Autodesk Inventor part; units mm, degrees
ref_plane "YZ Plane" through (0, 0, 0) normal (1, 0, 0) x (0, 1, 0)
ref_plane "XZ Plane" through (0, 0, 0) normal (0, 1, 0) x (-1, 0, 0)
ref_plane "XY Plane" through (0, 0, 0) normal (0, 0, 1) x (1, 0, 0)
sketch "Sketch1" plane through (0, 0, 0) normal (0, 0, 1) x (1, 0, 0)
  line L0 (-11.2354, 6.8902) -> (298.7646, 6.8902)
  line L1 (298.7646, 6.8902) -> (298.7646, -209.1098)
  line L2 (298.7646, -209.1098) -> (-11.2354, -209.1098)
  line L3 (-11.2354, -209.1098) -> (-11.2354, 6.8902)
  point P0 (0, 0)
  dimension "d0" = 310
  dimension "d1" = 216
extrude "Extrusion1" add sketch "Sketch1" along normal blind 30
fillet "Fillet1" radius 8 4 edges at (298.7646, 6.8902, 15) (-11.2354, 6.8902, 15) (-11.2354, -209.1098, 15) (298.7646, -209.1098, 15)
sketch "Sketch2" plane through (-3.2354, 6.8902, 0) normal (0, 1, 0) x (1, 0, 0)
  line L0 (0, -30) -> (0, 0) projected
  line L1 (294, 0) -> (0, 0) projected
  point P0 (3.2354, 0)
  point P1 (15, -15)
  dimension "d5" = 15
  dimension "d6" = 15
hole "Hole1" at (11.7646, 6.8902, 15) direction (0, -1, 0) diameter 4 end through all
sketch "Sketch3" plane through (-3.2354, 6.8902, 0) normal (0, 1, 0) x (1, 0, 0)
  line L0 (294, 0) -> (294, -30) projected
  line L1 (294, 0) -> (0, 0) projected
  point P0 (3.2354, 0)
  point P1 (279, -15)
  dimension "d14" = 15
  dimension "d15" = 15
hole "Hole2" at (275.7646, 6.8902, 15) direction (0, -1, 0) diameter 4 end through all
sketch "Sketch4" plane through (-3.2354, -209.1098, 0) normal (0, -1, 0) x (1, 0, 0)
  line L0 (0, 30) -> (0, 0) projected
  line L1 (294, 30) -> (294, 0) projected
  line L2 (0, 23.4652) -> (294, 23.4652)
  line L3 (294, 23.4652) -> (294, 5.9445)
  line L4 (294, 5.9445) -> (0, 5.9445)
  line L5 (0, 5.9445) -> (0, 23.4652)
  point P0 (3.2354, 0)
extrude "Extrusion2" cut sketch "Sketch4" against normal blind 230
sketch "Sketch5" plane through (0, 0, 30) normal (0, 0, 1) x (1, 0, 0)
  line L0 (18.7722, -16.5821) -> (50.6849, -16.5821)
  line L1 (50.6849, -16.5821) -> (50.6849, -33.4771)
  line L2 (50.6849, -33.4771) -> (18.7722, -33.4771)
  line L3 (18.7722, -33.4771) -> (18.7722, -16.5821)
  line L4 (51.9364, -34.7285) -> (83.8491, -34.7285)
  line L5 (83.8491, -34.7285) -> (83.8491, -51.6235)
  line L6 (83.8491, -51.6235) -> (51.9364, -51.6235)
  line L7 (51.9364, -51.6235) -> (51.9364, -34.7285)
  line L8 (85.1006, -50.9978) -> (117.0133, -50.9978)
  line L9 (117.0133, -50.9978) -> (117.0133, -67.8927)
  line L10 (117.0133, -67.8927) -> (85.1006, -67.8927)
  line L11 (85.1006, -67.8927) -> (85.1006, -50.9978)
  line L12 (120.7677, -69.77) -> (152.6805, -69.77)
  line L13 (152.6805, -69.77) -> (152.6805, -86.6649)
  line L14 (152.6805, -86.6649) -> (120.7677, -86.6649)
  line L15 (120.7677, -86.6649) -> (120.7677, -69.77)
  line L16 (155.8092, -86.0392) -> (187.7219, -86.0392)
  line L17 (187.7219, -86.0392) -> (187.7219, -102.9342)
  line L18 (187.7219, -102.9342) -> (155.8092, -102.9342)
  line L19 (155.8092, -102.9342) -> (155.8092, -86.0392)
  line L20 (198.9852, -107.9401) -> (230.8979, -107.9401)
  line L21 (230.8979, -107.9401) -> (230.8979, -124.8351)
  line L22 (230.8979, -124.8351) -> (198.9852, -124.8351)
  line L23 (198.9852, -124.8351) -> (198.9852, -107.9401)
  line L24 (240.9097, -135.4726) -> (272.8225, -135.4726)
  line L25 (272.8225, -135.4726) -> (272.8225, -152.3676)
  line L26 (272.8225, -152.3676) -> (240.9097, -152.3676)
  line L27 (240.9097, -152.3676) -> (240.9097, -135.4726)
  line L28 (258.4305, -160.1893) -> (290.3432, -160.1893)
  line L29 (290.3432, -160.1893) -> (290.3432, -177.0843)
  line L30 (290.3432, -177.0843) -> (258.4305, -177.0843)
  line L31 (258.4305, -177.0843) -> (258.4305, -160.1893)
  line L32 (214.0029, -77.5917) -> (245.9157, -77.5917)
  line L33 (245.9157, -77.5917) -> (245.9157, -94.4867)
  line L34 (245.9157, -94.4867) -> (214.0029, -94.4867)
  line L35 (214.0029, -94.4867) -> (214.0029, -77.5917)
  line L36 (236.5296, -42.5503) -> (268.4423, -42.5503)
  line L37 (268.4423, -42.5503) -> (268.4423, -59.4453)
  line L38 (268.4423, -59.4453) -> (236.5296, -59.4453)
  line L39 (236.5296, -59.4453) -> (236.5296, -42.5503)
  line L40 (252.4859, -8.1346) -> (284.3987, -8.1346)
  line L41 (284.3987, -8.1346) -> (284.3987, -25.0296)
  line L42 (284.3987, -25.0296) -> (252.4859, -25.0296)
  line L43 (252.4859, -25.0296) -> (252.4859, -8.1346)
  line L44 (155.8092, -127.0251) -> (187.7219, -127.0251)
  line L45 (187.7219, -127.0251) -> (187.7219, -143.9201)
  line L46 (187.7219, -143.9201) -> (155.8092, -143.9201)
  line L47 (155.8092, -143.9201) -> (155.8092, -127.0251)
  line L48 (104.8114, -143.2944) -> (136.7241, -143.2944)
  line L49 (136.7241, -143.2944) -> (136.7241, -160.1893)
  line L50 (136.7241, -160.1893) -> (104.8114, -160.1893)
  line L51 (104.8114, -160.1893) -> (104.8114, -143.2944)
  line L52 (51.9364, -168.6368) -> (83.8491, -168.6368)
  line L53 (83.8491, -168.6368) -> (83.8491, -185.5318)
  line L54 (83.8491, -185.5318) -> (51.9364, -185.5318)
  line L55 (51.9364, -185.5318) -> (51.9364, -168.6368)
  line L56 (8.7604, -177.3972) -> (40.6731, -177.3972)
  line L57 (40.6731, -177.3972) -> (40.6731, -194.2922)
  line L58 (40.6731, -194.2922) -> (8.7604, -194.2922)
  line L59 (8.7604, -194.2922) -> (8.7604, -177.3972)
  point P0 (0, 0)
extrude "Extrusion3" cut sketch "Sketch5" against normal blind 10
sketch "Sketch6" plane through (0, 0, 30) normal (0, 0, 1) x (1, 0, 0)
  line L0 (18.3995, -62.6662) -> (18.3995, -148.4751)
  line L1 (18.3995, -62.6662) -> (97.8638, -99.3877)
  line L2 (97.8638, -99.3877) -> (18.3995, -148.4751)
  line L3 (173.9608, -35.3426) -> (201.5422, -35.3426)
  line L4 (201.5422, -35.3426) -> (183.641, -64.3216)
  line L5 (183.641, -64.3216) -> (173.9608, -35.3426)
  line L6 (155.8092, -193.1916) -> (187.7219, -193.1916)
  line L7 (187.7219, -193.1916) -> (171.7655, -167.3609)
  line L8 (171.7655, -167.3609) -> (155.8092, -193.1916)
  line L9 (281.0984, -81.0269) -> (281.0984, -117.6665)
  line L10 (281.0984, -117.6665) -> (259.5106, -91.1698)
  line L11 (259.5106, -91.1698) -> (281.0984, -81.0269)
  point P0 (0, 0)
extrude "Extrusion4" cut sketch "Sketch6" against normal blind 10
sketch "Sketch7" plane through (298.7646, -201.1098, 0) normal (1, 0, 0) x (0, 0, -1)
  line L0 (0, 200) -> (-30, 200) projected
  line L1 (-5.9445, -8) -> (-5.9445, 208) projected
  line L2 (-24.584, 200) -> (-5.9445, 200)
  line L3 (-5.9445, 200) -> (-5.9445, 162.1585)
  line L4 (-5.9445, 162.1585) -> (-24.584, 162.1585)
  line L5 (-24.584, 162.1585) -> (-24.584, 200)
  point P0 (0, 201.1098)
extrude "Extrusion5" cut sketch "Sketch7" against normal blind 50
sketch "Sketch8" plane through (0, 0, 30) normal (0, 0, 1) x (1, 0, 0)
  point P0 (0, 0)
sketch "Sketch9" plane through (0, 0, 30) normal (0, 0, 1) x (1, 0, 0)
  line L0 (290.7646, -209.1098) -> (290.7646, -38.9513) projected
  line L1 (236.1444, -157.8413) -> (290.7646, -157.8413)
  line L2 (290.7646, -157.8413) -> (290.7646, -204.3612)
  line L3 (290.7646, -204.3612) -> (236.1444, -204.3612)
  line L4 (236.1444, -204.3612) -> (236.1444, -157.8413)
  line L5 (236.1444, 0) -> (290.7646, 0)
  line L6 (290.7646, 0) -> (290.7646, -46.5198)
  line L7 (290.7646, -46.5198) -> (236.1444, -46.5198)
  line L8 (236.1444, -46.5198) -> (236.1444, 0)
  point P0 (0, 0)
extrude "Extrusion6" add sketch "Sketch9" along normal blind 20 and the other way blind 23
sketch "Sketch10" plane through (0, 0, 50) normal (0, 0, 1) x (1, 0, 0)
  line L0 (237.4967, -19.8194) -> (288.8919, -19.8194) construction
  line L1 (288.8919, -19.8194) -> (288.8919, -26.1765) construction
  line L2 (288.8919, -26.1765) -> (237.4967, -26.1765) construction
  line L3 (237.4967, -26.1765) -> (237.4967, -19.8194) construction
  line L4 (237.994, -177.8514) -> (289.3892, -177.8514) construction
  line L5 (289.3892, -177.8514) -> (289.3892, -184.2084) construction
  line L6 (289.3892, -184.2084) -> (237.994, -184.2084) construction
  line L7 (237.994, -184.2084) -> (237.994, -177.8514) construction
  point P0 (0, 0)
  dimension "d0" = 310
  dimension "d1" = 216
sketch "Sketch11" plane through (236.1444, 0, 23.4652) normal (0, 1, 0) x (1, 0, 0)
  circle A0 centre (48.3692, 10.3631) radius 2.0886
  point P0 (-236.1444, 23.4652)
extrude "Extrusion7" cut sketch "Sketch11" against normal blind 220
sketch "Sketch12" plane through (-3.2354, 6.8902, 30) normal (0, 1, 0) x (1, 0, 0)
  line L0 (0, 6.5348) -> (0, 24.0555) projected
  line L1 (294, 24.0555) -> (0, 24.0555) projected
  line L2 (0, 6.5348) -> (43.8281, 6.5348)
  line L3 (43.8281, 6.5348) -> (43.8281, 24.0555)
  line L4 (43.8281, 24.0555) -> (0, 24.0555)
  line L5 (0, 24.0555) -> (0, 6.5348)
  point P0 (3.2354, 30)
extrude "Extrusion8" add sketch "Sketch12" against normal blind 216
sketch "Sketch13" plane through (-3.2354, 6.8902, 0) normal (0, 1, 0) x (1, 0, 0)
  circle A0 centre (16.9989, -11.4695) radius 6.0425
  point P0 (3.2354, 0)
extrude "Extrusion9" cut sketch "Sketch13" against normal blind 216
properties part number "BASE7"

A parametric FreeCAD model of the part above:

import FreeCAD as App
import Part
import Sketcher

V = App.Vector
Q = App.Units.Quantity


def edges_at(feature, points):
    """Names of the edges that pass closest to the given points."""
    edges = feature.Shape.Edges
    near = lambda p: min(range(len(edges)), key=lambda i: edges[i].distToShape(Part.Vertex(*p))[0])
    return sorted({f"Edge{near(p) + 1}" for p in points})


def add_polygon(sketch, points):
    """Adds a closed chain of lines whose ends are joined by coincident constraints."""
    first, n = sketch.GeometryCount, len(points)
    for a, b in zip(points, points[1:] + points[:1]):
        sketch.addGeometry(Part.LineSegment(App.Vector(*a, 0), App.Vector(*b, 0)), False)
    for i in range(n):
        sketch.addConstraint(Sketcher.Constraint("Coincident", first + i, 2, first + (i + 1) % n, 1))

doc = App.newDocument("Part")
body = doc.addObject("PartDesign::Body", "Body")

# Sketch on XY plane
sketch1 = doc.addObject("Sketcher::SketchObject", "Sketch")
body.addObject(sketch1)
sketch1.AttachmentSupport = (doc.XY_Plane, [""])
sketch1.MapMode = "FlatFace"
add_polygon(sketch1, [(299, 7), (-11, 7), (-11, -209), (299, -209)])  # lines 0-3
sketch1.addConstraint(Sketcher.Constraint("Horizontal", 0))
sketch1.addConstraint(Sketcher.Constraint("Vertical", 1))
sketch1.addConstraint(Sketcher.Constraint("Horizontal", 2))
sketch1.addConstraint(Sketcher.Constraint("Vertical", 3))
sketch1.addConstraint(Sketcher.Constraint("DistanceX", 0, 2, 0, 1, 310.0))
sketch1.addConstraint(Sketcher.Constraint("DistanceY", 1, 2, 1, 1, 216.0))
sketch1.addConstraint(Sketcher.Constraint("DistanceX", 0, 2, -1, 1, 11.2354))
sketch1.addConstraint(Sketcher.Constraint("DistanceY", -1, 1, 0, 2, 6.8902))
pad1 = doc.addObject("PartDesign::Pad", "Pad")
body.addObject(pad1)
pad1.Profile = sketch1
pad1.Length = 30
doc.recompute()

fillet = doc.addObject("PartDesign::Fillet", "Fillet")
body.addObject(fillet)
fillet.Base = (pad1, edges_at(pad1, [
    (298.765, 6.89, 15),
    (-11.235, 6.89, 15),
    (-11.235, -209.11, 15),
    (298.765, -209.11, 15),
]))
fillet.Radius = 8

# Sketch on XZ plane
sketch2 = doc.addObject("Sketcher::SketchObject", "Sketch001")
body.addObject(sketch2)
sketch2.AttachmentSupport = (doc.XZ_Plane, [""])
sketch2.MapMode = "FlatFace"
sketch2.AttachmentOffset = App.Placement(V(0, 0, -6.8902), App.Rotation())
sketch2.addGeometry(Part.Circle(V(11.8, 15, 0), V(0, 0, 1), 2), False)
sketch2.addConstraint(Sketcher.Constraint("Diameter", 0, 4.0))
sketch2.addConstraint(Sketcher.Constraint("DistanceY", -1, 1, 0, 3, 15.0))
sketch2.addConstraint(Sketcher.Constraint("DistanceX", -1, 1, 0, 3, 11.7646))
doc.recompute()
hole = doc.addObject("PartDesign::Hole", "Hole")
body.addObject(hole)
hole.Profile = sketch2
hole.ThreadType = "None"
hole.Diameter = 4
hole.DepthType = "ThroughAll"
hole.Reversed = True

# Sketch on XZ plane
sketch3 = doc.addObject("Sketcher::SketchObject", "Sketch002")
body.addObject(sketch3)
sketch3.AttachmentSupport = (doc.XZ_Plane, [""])
sketch3.MapMode = "FlatFace"
sketch3.AttachmentOffset = App.Placement(V(0, 0, -6.8902), App.Rotation())
sketch3.addGeometry(Part.Circle(V(275.8, 15, 0), V(0, 0, 1), 2), False)
sketch3.addConstraint(Sketcher.Constraint("Diameter", 0, 4.0))
sketch3.addConstraint(Sketcher.Constraint("DistanceY", -1, 1, 0, 3, 15.0))
sketch3.addConstraint(Sketcher.Constraint("DistanceX", -1, 1, 0, 3, 275.7646))
doc.recompute()
hole2 = doc.addObject("PartDesign::Hole", "Hole001")
body.addObject(hole2)
hole2.Profile = sketch3
hole2.ThreadType = "None"
hole2.Diameter = 4
hole2.DepthType = "ThroughAll"
hole2.Reversed = True

# Sketch on XZ plane
sketch4 = doc.addObject("Sketcher::SketchObject", "Sketch003")
body.addObject(sketch4)
sketch4.AttachmentSupport = (doc.XZ_Plane, [""])
sketch4.MapMode = "FlatFace"
sketch4.AttachmentOffset = App.Placement(V(0, 0, 209.1098), App.Rotation())
add_polygon(sketch4, [(291, 23), (-3, 23), (-3, 6), (291, 6)])  # lines 0-3
sketch4.addConstraint(Sketcher.Constraint("Horizontal", 0))
sketch4.addConstraint(Sketcher.Constraint("Vertical", 1))
sketch4.addConstraint(Sketcher.Constraint("Horizontal", 2))
sketch4.addConstraint(Sketcher.Constraint("Vertical", 3))
sketch4.addConstraint(Sketcher.Constraint("DistanceX", 0, 2, 0, 1, 294.0))
sketch4.addConstraint(Sketcher.Constraint("DistanceY", 1, 2, 1, 1, 17.5207))
sketch4.addConstraint(Sketcher.Constraint("DistanceX", 0, 2, -1, 1, 3.2354))
sketch4.addConstraint(Sketcher.Constraint("DistanceY", -1, 1, 0, 2, 23.4652))
pocket1 = doc.addObject("PartDesign::Pocket", "Pocket")
body.addObject(pocket1)
pocket1.Profile = sketch4
pocket1.Length = 230

# Sketch on XY plane
sketch5 = doc.addObject("Sketcher::SketchObject", "Sketch004")
body.addObject(sketch5)
sketch5.AttachmentSupport = (doc.XY_Plane, [""])
sketch5.MapMode = "FlatFace"
sketch5.AttachmentOffset = App.Placement(V(0, 0, 30), App.Rotation())
add_polygon(sketch5, [(51, -17), (19, -17), (19, -33), (51, -33)])  # lines 0-3
add_polygon(sketch5, [(84, -35), (52, -35), (52, -52), (84, -52)])  # lines 4-7
add_polygon(sketch5, [(117, -51), (85, -51), (85, -68), (117, -68)])  # lines 8-11
add_polygon(sketch5, [(153, -70), (121, -70), (121, -87), (153, -87)])  # lines 12-15
add_polygon(sketch5, [(188, -86), (156, -86), (156, -103), (188, -103)])  # lines 16-19
add_polygon(sketch5, [(231, -108), (199, -108), (199, -125), (231, -125)])  # lines 20-23
add_polygon(sketch5, [(273, -135), (241, -135), (241, -152), (273, -152)])  # lines 24-27
add_polygon(sketch5, [(290, -160), (258, -160), (258, -177), (290, -177)])  # lines 28-31
add_polygon(sketch5, [(246, -78), (214, -78), (214, -94), (246, -94)])  # lines 32-35
add_polygon(sketch5, [(268, -43), (237, -43), (237, -59), (268, -59)])  # lines 36-39
add_polygon(sketch5, [(284, -8), (252, -8), (252, -25), (284, -25)])  # lines 40-43
add_polygon(sketch5, [(188, -127), (156, -127), (156, -144), (188, -144)])  # lines 44-47
add_polygon(sketch5, [(137, -143), (105, -143), (105, -160), (137, -160)])  # lines 48-51
add_polygon(sketch5, [(84, -169), (52, -169), (52, -186), (84, -186)])  # lines 52-55
add_polygon(sketch5, [(41, -177), (9, -177), (9, -194), (41, -194)])  # lines 56-59
sketch5.addConstraint(Sketcher.Constraint("Horizontal", 0))
sketch5.addConstraint(Sketcher.Constraint("Vertical", 1))
sketch5.addConstraint(Sketcher.Constraint("Horizontal", 2))
sketch5.addConstraint(Sketcher.Constraint("Vertical", 3))
sketch5.addConstraint(Sketcher.Constraint("Horizontal", 4))
sketch5.addConstraint(Sketcher.Constraint("Vertical", 5))
sketch5.addConstraint(Sketcher.Constraint("Horizontal", 6))
sketch5.addConstraint(Sketcher.Constraint("Vertical", 7))
sketch5.addConstraint(Sketcher.Constraint("Horizontal", 8))
sketch5.addConstraint(Sketcher.Constraint("Vertical", 9))
sketch5.addConstraint(Sketcher.Constraint("Horizontal", 10))
sketch5.addConstraint(Sketcher.Constraint("Vertical", 11))
sketch5.addConstraint(Sketcher.Constraint("Horizontal", 12))
sketch5.addConstraint(Sketcher.Constraint("Vertical", 13))
sketch5.addConstraint(Sketcher.Constraint("Horizontal", 14))
sketch5.addConstraint(Sketcher.Constraint("Vertical", 15))
sketch5.addConstraint(Sketcher.Constraint("Horizontal", 16))
sketch5.addConstraint(Sketcher.Constraint("Vertical", 17))
sketch5.addConstraint(Sketcher.Constraint("Horizontal", 18))
sketch5.addConstraint(Sketcher.Constraint("Vertical", 19))
sketch5.addConstraint(Sketcher.Constraint("Horizontal", 20))
sketch5.addConstraint(Sketcher.Constraint("Vertical", 21))
sketch5.addConstraint(Sketcher.Constraint("Horizontal", 22))
sketch5.addConstraint(Sketcher.Constraint("Vertical", 23))
sketch5.addConstraint(Sketcher.Constraint("Horizontal", 24))
sketch5.addConstraint(Sketcher.Constraint("Vertical", 25))
sketch5.addConstraint(Sketcher.Constraint("Horizontal", 26))
sketch5.addConstraint(Sketcher.Constraint("Vertical", 27))
sketch5.addConstraint(Sketcher.Constraint("Horizontal", 28))
sketch5.addConstraint(Sketcher.Constraint("Vertical", 29))
sketch5.addConstraint(Sketcher.Constraint("Horizontal", 30))
sketch5.addConstraint(Sketcher.Constraint("Vertical", 31))
sketch5.addConstraint(Sketcher.Constraint("Horizontal", 32))
sketch5.addConstraint(Sketcher.Constraint("Vertical", 33))
sketch5.addConstraint(Sketcher.Constraint("Horizontal", 34))
sketch5.addConstraint(Sketcher.Constraint("Vertical", 35))
sketch5.addConstraint(Sketcher.Constraint("Horizontal", 36))
sketch5.addConstraint(Sketcher.Constraint("Vertical", 37))
sketch5.addConstraint(Sketcher.Constraint("Horizontal", 38))
sketch5.addConstraint(Sketcher.Constraint("Vertical", 39))
sketch5.addConstraint(Sketcher.Constraint("Horizontal", 40))
sketch5.addConstraint(Sketcher.Constraint("Vertical", 41))
sketch5.addConstraint(Sketcher.Constraint("Horizontal", 42))
sketch5.addConstraint(Sketcher.Constraint("Vertical", 43))
sketch5.addConstraint(Sketcher.Constraint("Horizontal", 44))
sketch5.addConstraint(Sketcher.Constraint("Vertical", 45))
sketch5.addConstraint(Sketcher.Constraint("Horizontal", 46))
sketch5.addConstraint(Sketcher.Constraint("Vertical", 47))
sketch5.addConstraint(Sketcher.Constraint("Horizontal", 48))
sketch5.addConstraint(Sketcher.Constraint("Vertical", 49))
sketch5.addConstraint(Sketcher.Constraint("Horizontal", 50))
sketch5.addConstraint(Sketcher.Constraint("Vertical", 51))
sketch5.addConstraint(Sketcher.Constraint("Horizontal", 52))
sketch5.addConstraint(Sketcher.Constraint("Vertical", 53))
sketch5.addConstraint(Sketcher.Constraint("Horizontal", 54))
sketch5.addConstraint(Sketcher.Constraint("Vertical", 55))
sketch5.addConstraint(Sketcher.Constraint("Horizontal", 56))
sketch5.addConstraint(Sketcher.Constraint("Vertical", 57))
sketch5.addConstraint(Sketcher.Constraint("Horizontal", 58))
sketch5.addConstraint(Sketcher.Constraint("Vertical", 59))
sketch5.addConstraint(Sketcher.Constraint("Horizontal", 31, 2, 49, 2))
sketch5.addConstraint(Sketcher.Constraint("Vertical", 17, 2, 44, 2))
sketch5.addConstraint(Sketcher.Constraint("Vertical", 19, 2, 46, 2))
sketch5.addConstraint(Sketcher.Constraint("Vertical", 5, 2, 52, 2))
sketch5.addConstraint(Sketcher.Constraint("Vertical", 7, 2, 54, 2))
sketch5.addConstraint(Sketcher.Constraint("Equal", 2, 4))
sketch5.addConstraint(Sketcher.Constraint("Equal", 6, 8))
sketch5.addConstraint(Sketcher.Constraint("Equal", 10, 12))
sketch5.addConstraint(Sketcher.Constraint("Equal", 14, 16))
sketch5.addConstraint(Sketcher.Constraint("Equal", 18, 20))
sketch5.addConstraint(Sketcher.Constraint("Equal", 22, 24))
sketch5.addConstraint(Sketcher.Constraint("Equal", 26, 28))
sketch5.addConstraint(Sketcher.Constraint("Equal", 30, 32))
sketch5.addConstraint(Sketcher.Constraint("Equal", 34, 36))
sketch5.addConstraint(Sketcher.Constraint("Equal", 38, 40))
sketch5.addConstraint(Sketcher.Constraint("Equal", 46, 48))
sketch5.addConstraint(Sketcher.Constraint("Equal", 54, 56))
sketch5.addConstraint(Sketcher.Constraint("Equal", 3, 5))
sketch5.addConstraint(Sketcher.Constraint("Equal", 7, 9))
sketch5.addConstraint(Sketcher.Constraint("Equal", 11, 13))
sketch5.addConstraint(Sketcher.Constraint("Equal", 15, 17))
sketch5.addConstraint(Sketcher.Constraint("Equal", 19, 21))
sketch5.addConstraint(Sketcher.Constraint("Equal", 23, 25))
sketch5.addConstraint(Sketcher.Constraint("Equal", 27, 29))
sketch5.addConstraint(Sketcher.Constraint("Equal", 31, 33))
sketch5.addConstraint(Sketcher.Constraint("Equal", 35, 37))
sketch5.addConstraint(Sketcher.Constraint("Equal", 39, 41))
sketch5.addConstraint(Sketcher.Constraint("Equal", 43, 45))
sketch5.addConstraint(Sketcher.Constraint("Equal", 47, 49))
sketch5.addConstraint(Sketcher.Constraint("Equal", 51, 53))
sketch5.addConstraint(Sketcher.Constraint("Equal", 55, 57))
sketch5.addConstraint(Sketcher.Constraint("DistanceY", 1, 2, 1, 1, 16.895))
sketch5.addConstraint(Sketcher.Constraint("DistanceY", 12, 2, -1, 1, 69.77))
sketch5.addConstraint(Sketcher.Constraint("DistanceY", 20, 2, -1, 1, 107.94))
sketch5.addConstraint(Sketcher.Constraint("DistanceY", 45, 2, -1, 1, 143.92))
sketch5.addConstraint(Sketcher.Constraint("DistanceX", 9, 2, 14, 2, 67.58))
sketch5.addConstraint(Sketcher.Constraint("DistanceX", 0, 2, 0, 1, 31.9127))
sketch5.addConstraint(Sketcher.Constraint("DistanceY", 0, 2, -1, 1, 16.582))
sketch5.addConstraint(Sketcher.Constraint("DistanceX", -1, 1, 2, 2, 50.685))
sketch5.addConstraint(Sketcher.Constraint("DistanceX", -1, 1, 6, 2, 83.849))
sketch5.addConstraint(Sketcher.Constraint("DistanceX", -1, 1, 18, 2, 187.722))
sketch5.addConstraint(Sketcher.Constraint("DistanceX", -1, 1, 22, 2, 230.898))
sketch5.addConstraint(Sketcher.Constraint("DistanceX", -1, 1, 32, 2, 214.003))
sketch5.addConstraint(Sketcher.Constraint("DistanceX", -1, 1, 40, 2, 252.486))
sketch5.addConstraint(Sketcher.Constraint("DistanceX", -1, 1, 50, 2, 136.724))
sketch5.addConstraint(Sketcher.Constraint("DistanceX", -1, 1, 58, 2, 40.673))
sketch5.addConstraint(Sketcher.Constraint("DistanceX", 5, 2, 10, 2, 65.077))
sketch5.addConstraint(Sketcher.Constraint("DistanceY", 13, 2, 11, 2, 35.667))
sketch5.addConstraint(Sketcher.Constraint("DistanceY", 20, 2, 18, 2, 5.006))
sketch5.addConstraint(Sketcher.Constraint("DistanceX", 28, 2, 26, 2, 14.392))
sketch5.addConstraint(Sketcher.Constraint("DistanceX", 24, 2, 34, 2, 5.006))
sketch5.addConstraint(Sketcher.Constraint("DistanceY", 24, 2, 34, 2, 40.986))
sketch5.addConstraint(Sketcher.Constraint("DistanceX", 36, 2, 35, 2, 9.386))
sketch5.addConstraint(Sketcher.Constraint("DistanceY", 19, 2, 36, 2, 43.489))
sketch5.addConstraint(Sketcher.Constraint("DistanceY", 35, 2, 40, 2, 69.457))
sketch5.addConstraint(Sketcher.Constraint("DistanceY", 49, 2, 17, 2, 57.255))
sketch5.addConstraint(Sketcher.Constraint("DistanceY", 52, 2, 9, 2, 100.744))
sketch5.addConstraint(Sketcher.Constraint("DistanceY", 56, 2, 49, 2, 17.208))
sketch5.addConstraint(Sketcher.Constraint("DistanceY", 4, 2, -1, 1, 34.7285))
sketch5.addConstraint(Sketcher.Constraint("DistanceY", 24, 2, -1, 1, 135.4726))
pocket2 = doc.addObject("PartDesign::Pocket", "Pocket001")
body.addObject(pocket2)
pocket2.Profile = sketch5
pocket2.Length = 10

# Sketch on XY plane
sketch6 = doc.addObject("Sketcher::SketchObject", "Sketch005")
body.addObject(sketch6)
sketch6.AttachmentSupport = (doc.XY_Plane, [""])
sketch6.MapMode = "FlatFace"
sketch6.AttachmentOffset = App.Placement(V(0, 0, 30), App.Rotation())
add_polygon(sketch6, [(98, -99), (18, -63), (18, -148)])  # lines 0-2
add_polygon(sketch6, [(202, -35), (174, -35), (184, -64)])  # lines 3-5
add_polygon(sketch6, [(172, -167), (156, -193), (188, -193)])  # lines 6-8
add_polygon(sketch6, [(281, -118), (281, -81), (260, -91)])  # lines 9-11
sketch6.addConstraint(Sketcher.Constraint("Vertical", 1))
sketch6.addConstraint(Sketcher.Constraint("Horizontal", 3))
sketch6.addConstraint(Sketcher.Constraint("Horizontal", 7))
sketch6.addConstraint(Sketcher.Constraint("Vertical", 9))
sketch6.addConstraint(Sketcher.Constraint("Parallel", 5, 6))
sketch6.addConstraint(Sketcher.Constraint("Perpendicular", 2, 8))
sketch6.addConstraint(Sketcher.Constraint("Equal", 6, 8))
sketch6.addConstraint(Sketcher.Constraint("Angle", 11, Q("-50.829 deg")))
sketch6.addConstraint(Sketcher.Constraint("DistanceY", 1, 2, 1, 1, 85.809))
sketch6.addConstraint(Sketcher.Constraint("DistanceY", 6, 2, 4, 2, 128.87))
sketch6.addConstraint(Sketcher.Constraint("Distance", 4, 30.553))
sketch6.addConstraint(Sketcher.Constraint("DistanceX", 3, 2, 3, 1, 27.5814))
sketch6.addConstraint(Sketcher.Constraint("DistanceX", 7, 1, 7, 2, 31.9127))
sketch6.addConstraint(Sketcher.Constraint("DistanceY", 9, 1, 9, 2, 36.6396))
sketch6.addConstraint(Sketcher.Constraint("DistanceY", 1, 2, -1, 1, 148.475))
sketch6.addConstraint(Sketcher.Constraint("DistanceX", -1, 1, 4, 2, 183.641))
sketch6.addConstraint(Sketcher.Constraint("DistanceX", -1, 1, 7, 2, 187.722))
sketch6.addConstraint(Sketcher.Constraint("DistanceY", 8, 2, -1, 1, 167.361))
sketch6.addConstraint(Sketcher.Constraint("DistanceY", 9, 2, -1, 1, 81.027))
sketch6.addConstraint(Sketcher.Constraint("DistanceX", 2, 2, 3, 2, 76.097))
sketch6.addConstraint(Sketcher.Constraint("DistanceY", 2, 2, 3, 2, 64.045))
sketch6.addConstraint(Sketcher.Constraint("DistanceY", 4, 2, 3, 2, 28.979))
sketch6.addConstraint(Sketcher.Constraint("DistanceX", 8, 2, 9, 2, 109.333))
sketch6.addConstraint(Sketcher.Constraint("DistanceY", 10, 2, 9, 2, 10.143))
pocket3 = doc.addObject("PartDesign::Pocket", "Pocket002")
body.addObject(pocket3)
pocket3.Profile = sketch6
pocket3.Length = 10

# Sketch on YZ plane
sketch7 = doc.addObject("Sketcher::SketchObject", "Sketch006")
body.addObject(sketch7)
sketch7.AttachmentSupport = (doc.YZ_Plane, [""])
sketch7.MapMode = "FlatFace"
sketch7.AttachmentOffset = App.Placement(V(0, 0, 298.7646), App.Rotation())
add_polygon(sketch7, [(-39, 6), (-1, 6), (-1, 25), (-39, 25)])  # lines 0-3
sketch7.addConstraint(Sketcher.Constraint("Horizontal", 0))
sketch7.addConstraint(Sketcher.Constraint("Vertical", 1))
sketch7.addConstraint(Sketcher.Constraint("Horizontal", 2))
sketch7.addConstraint(Sketcher.Constraint("Vertical", 3))
sketch7.addConstraint(Sketcher.Constraint("DistanceX", 0, 1, 0, 2, 37.8415))
sketch7.addConstraint(Sketcher.Constraint("DistanceY", 1, 1, 1, 2, 18.6395))
sketch7.addConstraint(Sketcher.Constraint("DistanceY", -1, 1, 1, 2, 24.584))
sketch7.addConstraint(Sketcher.Constraint("DistanceX", 0, 2, -1, 1, 1.1098))
pocket4 = doc.addObject("PartDesign::Pocket", "Pocket003")
body.addObject(pocket4)
pocket4.Profile = sketch7
pocket4.Length = 50

# Sketch on XY plane
sketch8 = doc.addObject("Sketcher::SketchObject", "Sketch007")
body.addObject(sketch8)
sketch8.AttachmentSupport = (doc.XY_Plane, [""])
sketch8.MapMode = "FlatFace"
sketch8.AttachmentOffset = App.Placement(V(0, 0, 30), App.Rotation())
add_polygon(sketch8, [(236, -204), (291, -204), (291, -158), (236, -158)])  # lines 0-3
add_polygon(sketch8, [(236, -47), (291, -47), (291, 0), (236, 0)])  # lines 4-7
sketch8.addConstraint(Sketcher.Constraint("Horizontal", 0))
sketch8.addConstraint(Sketcher.Constraint("Vertical", 1))
sketch8.addConstraint(Sketcher.Constraint("Horizontal", 2))
sketch8.addConstraint(Sketcher.Constraint("Vertical", 3))
sketch8.addConstraint(Sketcher.Constraint("Horizontal", 4))
sketch8.addConstraint(Sketcher.Constraint("Vertical", 5))
sketch8.addConstraint(Sketcher.Constraint("Horizontal", 6))
sketch8.addConstraint(Sketcher.Constraint("Vertical", 7))
sketch8.addConstraint(Sketcher.Constraint("PointOnObject", 5, 2, -1))
sketch8.addConstraint(Sketcher.Constraint("Vertical", 1, 2, 4, 2))
sketch8.addConstraint(Sketcher.Constraint("Vertical", 3, 2, 6, 2))
sketch8.addConstraint(Sketcher.Constraint("Equal", 3, 5))
sketch8.addConstraint(Sketcher.Constraint("DistanceY", 1, 1, 1, 2, 46.52))
sketch8.addConstraint(Sketcher.Constraint("DistanceX", 0, 1, 0, 2, 54.6202))
sketch8.addConstraint(Sketcher.Constraint("DistanceX", -1, 1, 0, 2, 290.7646))
sketch8.addConstraint(Sketcher.Constraint("DistanceY", 0, 2, -1, 1, 204.3612))
pad2 = doc.addObject("PartDesign::Pad", "Pad001")
body.addObject(pad2)
pad2.Profile = sketch8
pad2.Type = "TwoLengths"
pad2.Length = 20
pad2.Length2 = 23

# Sketch on XZ plane
sketch9 = doc.addObject("Sketcher::SketchObject", "Sketch008")
body.addObject(sketch9)
sketch9.AttachmentSupport = (doc.XZ_Plane, [""])
sketch9.MapMode = "FlatFace"
sketch9.addGeometry(Part.Circle(V(284.5, 13.1, 0), V(0, 0, 1), 2.1), False)
sketch9.addConstraint(Sketcher.Constraint("Diameter", 0, 4.1772))
sketch9.addConstraint(Sketcher.Constraint("DistanceY", -1, 1, 0, 3, 13.102))
sketch9.addConstraint(Sketcher.Constraint("DistanceX", -1, 1, 0, 3, 284.5136))
pocket5 = doc.addObject("PartDesign::Pocket", "Pocket004")
body.addObject(pocket5)
pocket5.Profile = sketch9
pocket5.Length = 220
pocket5.Reversed = True

# Sketch on XZ plane
sketch10 = doc.addObject("Sketcher::SketchObject", "Sketch009")
body.addObject(sketch10)
sketch10.AttachmentSupport = (doc.XZ_Plane, [""])
sketch10.MapMode = "FlatFace"
sketch10.AttachmentOffset = App.Placement(V(0, 0, -6.8902), App.Rotation())
add_polygon(sketch10, [(-3, 6), (-3, 23), (41, 23), (41, 6)])  # lines 0-3
sketch10.addConstraint(Sketcher.Constraint("Vertical", 0))
sketch10.addConstraint(Sketcher.Constraint("Horizontal", 1))
sketch10.addConstraint(Sketcher.Constraint("Vertical", 2))
sketch10.addConstraint(Sketcher.Constraint("Horizontal", 3))
sketch10.addConstraint(Sketcher.Constraint("DistanceX", 1, 1, 1, 2, 43.828))
sketch10.addConstraint(Sketcher.Constraint("DistanceY", 0, 1, 0, 2, 17.5207))
sketch10.addConstraint(Sketcher.Constraint("DistanceX", 0, 2, -1, 1, 3.2354))
sketch10.addConstraint(Sketcher.Constraint("DistanceY", -1, 1, 0, 2, 23.4652))
pad3 = doc.addObject("PartDesign::Pad", "Pad002")
body.addObject(pad3)
pad3.Profile = sketch10
pad3.Length = 216

# Sketch on XZ plane
sketch11 = doc.addObject("Sketcher::SketchObject", "Sketch010")
body.addObject(sketch11)
sketch11.AttachmentSupport = (doc.XZ_Plane, [""])
sketch11.MapMode = "FlatFace"
sketch11.AttachmentOffset = App.Placement(V(0, 0, -6.8902), App.Rotation())
sketch11.addGeometry(Part.Circle(V(14, 11, 0), V(0, 0, 1), 6), False)
sketch11.addConstraint(Sketcher.Constraint("Diameter", 0, 12.085))
sketch11.addConstraint(Sketcher.Constraint("DistanceX", -1, 1, 0, 3, 13.7635))
sketch11.addConstraint(Sketcher.Constraint("DistanceY", -1, 1, 0, 3, 11.4695))
pocket6 = doc.addObject("PartDesign::Pocket", "Pocket005")
body.addObject(pocket6)
pocket6.Profile = sketch11
pocket6.Length = 216
pocket6.Reversed = True

doc.recompute()
